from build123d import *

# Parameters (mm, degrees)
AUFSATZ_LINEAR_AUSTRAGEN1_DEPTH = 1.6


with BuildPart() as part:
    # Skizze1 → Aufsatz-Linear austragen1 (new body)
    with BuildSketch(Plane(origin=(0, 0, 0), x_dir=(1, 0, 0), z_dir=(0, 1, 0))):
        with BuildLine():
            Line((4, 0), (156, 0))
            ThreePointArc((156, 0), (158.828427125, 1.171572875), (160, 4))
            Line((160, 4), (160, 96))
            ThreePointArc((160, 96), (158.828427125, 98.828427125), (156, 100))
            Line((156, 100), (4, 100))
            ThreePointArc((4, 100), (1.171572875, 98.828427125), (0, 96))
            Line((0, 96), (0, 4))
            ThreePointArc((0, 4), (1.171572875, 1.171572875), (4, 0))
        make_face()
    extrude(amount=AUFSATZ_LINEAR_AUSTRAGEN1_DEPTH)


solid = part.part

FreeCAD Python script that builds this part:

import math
import FreeCAD as App
import Part
import Sketcher
from FreeCAD import Vector

doc = App.newDocument("Part")
body = doc.addObject("PartDesign::Body", "Body")

sketch1 = body.newObject("Sketcher::SketchObject", "Sketch")
sketch1.AttachmentSupport = (doc.getObject("XZ_Plane"), [""])
sketch1.MapMode = "FlatFace"
sketch1.addGeometry(Part.LineSegment(Vector(4, 0, 0), Vector(156, 0, 0)), False)
sketch1.addGeometry(Part.ArcOfCircle(Part.Circle(Vector(156, -4, 0), Vector(0, 0, 1), 4), math.radians(0), math.radians(90)), False)
sketch1.addGeometry(Part.LineSegment(Vector(160, -4, 0), Vector(160, -96, 0)), False)
sketch1.addGeometry(Part.ArcOfCircle(Part.Circle(Vector(156, -96, 0), Vector(0, 0, 1), 4), math.radians(-90), math.radians(0)), False)
sketch1.addGeometry(Part.LineSegment(Vector(156, -100, 0), Vector(4, -100, 0)), False)
sketch1.addGeometry(Part.ArcOfCircle(Part.Circle(Vector(4, -96, 0), Vector(0, 0, 1), 4), math.radians(180), math.radians(270)), False)
sketch1.addGeometry(Part.LineSegment(Vector(0, -96, 0), Vector(0, -4, 0)), False)
sketch1.addGeometry(Part.ArcOfCircle(Part.Circle(Vector(4, -4, 0), Vector(0, 0, 1), 4), math.radians(90), math.radians(180)), False)
sketch1.addConstraint(Sketcher.Constraint("Tangent", 0, 2, 1, 2))
sketch1.addConstraint(Sketcher.Constraint("Tangent", 1, 1, 2, 1))
sketch1.addConstraint(Sketcher.Constraint("Tangent", 2, 2, 3, 2))
sketch1.addConstraint(Sketcher.Constraint("Tangent", 3, 1, 4, 1))
sketch1.addConstraint(Sketcher.Constraint("Tangent", 4, 2, 5, 2))
sketch1.addConstraint(Sketcher.Constraint("Tangent", 5, 1, 6, 1))
sketch1.addConstraint(Sketcher.Constraint("Tangent", 6, 2, 7, 2))
sketch1.addConstraint(Sketcher.Constraint("Tangent", 7, 1, 0, 1))
sketch1.addConstraint(Sketcher.Constraint("Horizontal", 0))
sketch1.addConstraint(Sketcher.Constraint("Vertical", 2))
sketch1.addConstraint(Sketcher.Constraint("Horizontal", 4))
sketch1.addConstraint(Sketcher.Constraint("Vertical", 6))
sketch1.addConstraint(Sketcher.Constraint("Equal", 1, 3))
sketch1.addConstraint(Sketcher.Constraint("Equal", 3, 5))
sketch1.addConstraint(Sketcher.Constraint("Equal", 5, 7))
sketch1.addConstraint(Sketcher.Constraint("PointOnObject", 0, 2, -1))
sketch1.addConstraint(Sketcher.Constraint("PointOnObject", 5, 1, -2))
sketch1.addConstraint(Sketcher.Constraint("Radius", 1, 4.0))
sketch1.addConstraint(Sketcher.Constraint("DistanceX", 0, 1, 0, 2, 152.0))
sketch1.addConstraint(Sketcher.Constraint("DistanceY", 2, 2, 2, 1, 92.0))
pad1 = body.newObject("PartDesign::Pad", "Pad")
pad1.Profile = sketch1
pad1.Length = 1.6
pad1.Reversed = True

doc.recompute()
